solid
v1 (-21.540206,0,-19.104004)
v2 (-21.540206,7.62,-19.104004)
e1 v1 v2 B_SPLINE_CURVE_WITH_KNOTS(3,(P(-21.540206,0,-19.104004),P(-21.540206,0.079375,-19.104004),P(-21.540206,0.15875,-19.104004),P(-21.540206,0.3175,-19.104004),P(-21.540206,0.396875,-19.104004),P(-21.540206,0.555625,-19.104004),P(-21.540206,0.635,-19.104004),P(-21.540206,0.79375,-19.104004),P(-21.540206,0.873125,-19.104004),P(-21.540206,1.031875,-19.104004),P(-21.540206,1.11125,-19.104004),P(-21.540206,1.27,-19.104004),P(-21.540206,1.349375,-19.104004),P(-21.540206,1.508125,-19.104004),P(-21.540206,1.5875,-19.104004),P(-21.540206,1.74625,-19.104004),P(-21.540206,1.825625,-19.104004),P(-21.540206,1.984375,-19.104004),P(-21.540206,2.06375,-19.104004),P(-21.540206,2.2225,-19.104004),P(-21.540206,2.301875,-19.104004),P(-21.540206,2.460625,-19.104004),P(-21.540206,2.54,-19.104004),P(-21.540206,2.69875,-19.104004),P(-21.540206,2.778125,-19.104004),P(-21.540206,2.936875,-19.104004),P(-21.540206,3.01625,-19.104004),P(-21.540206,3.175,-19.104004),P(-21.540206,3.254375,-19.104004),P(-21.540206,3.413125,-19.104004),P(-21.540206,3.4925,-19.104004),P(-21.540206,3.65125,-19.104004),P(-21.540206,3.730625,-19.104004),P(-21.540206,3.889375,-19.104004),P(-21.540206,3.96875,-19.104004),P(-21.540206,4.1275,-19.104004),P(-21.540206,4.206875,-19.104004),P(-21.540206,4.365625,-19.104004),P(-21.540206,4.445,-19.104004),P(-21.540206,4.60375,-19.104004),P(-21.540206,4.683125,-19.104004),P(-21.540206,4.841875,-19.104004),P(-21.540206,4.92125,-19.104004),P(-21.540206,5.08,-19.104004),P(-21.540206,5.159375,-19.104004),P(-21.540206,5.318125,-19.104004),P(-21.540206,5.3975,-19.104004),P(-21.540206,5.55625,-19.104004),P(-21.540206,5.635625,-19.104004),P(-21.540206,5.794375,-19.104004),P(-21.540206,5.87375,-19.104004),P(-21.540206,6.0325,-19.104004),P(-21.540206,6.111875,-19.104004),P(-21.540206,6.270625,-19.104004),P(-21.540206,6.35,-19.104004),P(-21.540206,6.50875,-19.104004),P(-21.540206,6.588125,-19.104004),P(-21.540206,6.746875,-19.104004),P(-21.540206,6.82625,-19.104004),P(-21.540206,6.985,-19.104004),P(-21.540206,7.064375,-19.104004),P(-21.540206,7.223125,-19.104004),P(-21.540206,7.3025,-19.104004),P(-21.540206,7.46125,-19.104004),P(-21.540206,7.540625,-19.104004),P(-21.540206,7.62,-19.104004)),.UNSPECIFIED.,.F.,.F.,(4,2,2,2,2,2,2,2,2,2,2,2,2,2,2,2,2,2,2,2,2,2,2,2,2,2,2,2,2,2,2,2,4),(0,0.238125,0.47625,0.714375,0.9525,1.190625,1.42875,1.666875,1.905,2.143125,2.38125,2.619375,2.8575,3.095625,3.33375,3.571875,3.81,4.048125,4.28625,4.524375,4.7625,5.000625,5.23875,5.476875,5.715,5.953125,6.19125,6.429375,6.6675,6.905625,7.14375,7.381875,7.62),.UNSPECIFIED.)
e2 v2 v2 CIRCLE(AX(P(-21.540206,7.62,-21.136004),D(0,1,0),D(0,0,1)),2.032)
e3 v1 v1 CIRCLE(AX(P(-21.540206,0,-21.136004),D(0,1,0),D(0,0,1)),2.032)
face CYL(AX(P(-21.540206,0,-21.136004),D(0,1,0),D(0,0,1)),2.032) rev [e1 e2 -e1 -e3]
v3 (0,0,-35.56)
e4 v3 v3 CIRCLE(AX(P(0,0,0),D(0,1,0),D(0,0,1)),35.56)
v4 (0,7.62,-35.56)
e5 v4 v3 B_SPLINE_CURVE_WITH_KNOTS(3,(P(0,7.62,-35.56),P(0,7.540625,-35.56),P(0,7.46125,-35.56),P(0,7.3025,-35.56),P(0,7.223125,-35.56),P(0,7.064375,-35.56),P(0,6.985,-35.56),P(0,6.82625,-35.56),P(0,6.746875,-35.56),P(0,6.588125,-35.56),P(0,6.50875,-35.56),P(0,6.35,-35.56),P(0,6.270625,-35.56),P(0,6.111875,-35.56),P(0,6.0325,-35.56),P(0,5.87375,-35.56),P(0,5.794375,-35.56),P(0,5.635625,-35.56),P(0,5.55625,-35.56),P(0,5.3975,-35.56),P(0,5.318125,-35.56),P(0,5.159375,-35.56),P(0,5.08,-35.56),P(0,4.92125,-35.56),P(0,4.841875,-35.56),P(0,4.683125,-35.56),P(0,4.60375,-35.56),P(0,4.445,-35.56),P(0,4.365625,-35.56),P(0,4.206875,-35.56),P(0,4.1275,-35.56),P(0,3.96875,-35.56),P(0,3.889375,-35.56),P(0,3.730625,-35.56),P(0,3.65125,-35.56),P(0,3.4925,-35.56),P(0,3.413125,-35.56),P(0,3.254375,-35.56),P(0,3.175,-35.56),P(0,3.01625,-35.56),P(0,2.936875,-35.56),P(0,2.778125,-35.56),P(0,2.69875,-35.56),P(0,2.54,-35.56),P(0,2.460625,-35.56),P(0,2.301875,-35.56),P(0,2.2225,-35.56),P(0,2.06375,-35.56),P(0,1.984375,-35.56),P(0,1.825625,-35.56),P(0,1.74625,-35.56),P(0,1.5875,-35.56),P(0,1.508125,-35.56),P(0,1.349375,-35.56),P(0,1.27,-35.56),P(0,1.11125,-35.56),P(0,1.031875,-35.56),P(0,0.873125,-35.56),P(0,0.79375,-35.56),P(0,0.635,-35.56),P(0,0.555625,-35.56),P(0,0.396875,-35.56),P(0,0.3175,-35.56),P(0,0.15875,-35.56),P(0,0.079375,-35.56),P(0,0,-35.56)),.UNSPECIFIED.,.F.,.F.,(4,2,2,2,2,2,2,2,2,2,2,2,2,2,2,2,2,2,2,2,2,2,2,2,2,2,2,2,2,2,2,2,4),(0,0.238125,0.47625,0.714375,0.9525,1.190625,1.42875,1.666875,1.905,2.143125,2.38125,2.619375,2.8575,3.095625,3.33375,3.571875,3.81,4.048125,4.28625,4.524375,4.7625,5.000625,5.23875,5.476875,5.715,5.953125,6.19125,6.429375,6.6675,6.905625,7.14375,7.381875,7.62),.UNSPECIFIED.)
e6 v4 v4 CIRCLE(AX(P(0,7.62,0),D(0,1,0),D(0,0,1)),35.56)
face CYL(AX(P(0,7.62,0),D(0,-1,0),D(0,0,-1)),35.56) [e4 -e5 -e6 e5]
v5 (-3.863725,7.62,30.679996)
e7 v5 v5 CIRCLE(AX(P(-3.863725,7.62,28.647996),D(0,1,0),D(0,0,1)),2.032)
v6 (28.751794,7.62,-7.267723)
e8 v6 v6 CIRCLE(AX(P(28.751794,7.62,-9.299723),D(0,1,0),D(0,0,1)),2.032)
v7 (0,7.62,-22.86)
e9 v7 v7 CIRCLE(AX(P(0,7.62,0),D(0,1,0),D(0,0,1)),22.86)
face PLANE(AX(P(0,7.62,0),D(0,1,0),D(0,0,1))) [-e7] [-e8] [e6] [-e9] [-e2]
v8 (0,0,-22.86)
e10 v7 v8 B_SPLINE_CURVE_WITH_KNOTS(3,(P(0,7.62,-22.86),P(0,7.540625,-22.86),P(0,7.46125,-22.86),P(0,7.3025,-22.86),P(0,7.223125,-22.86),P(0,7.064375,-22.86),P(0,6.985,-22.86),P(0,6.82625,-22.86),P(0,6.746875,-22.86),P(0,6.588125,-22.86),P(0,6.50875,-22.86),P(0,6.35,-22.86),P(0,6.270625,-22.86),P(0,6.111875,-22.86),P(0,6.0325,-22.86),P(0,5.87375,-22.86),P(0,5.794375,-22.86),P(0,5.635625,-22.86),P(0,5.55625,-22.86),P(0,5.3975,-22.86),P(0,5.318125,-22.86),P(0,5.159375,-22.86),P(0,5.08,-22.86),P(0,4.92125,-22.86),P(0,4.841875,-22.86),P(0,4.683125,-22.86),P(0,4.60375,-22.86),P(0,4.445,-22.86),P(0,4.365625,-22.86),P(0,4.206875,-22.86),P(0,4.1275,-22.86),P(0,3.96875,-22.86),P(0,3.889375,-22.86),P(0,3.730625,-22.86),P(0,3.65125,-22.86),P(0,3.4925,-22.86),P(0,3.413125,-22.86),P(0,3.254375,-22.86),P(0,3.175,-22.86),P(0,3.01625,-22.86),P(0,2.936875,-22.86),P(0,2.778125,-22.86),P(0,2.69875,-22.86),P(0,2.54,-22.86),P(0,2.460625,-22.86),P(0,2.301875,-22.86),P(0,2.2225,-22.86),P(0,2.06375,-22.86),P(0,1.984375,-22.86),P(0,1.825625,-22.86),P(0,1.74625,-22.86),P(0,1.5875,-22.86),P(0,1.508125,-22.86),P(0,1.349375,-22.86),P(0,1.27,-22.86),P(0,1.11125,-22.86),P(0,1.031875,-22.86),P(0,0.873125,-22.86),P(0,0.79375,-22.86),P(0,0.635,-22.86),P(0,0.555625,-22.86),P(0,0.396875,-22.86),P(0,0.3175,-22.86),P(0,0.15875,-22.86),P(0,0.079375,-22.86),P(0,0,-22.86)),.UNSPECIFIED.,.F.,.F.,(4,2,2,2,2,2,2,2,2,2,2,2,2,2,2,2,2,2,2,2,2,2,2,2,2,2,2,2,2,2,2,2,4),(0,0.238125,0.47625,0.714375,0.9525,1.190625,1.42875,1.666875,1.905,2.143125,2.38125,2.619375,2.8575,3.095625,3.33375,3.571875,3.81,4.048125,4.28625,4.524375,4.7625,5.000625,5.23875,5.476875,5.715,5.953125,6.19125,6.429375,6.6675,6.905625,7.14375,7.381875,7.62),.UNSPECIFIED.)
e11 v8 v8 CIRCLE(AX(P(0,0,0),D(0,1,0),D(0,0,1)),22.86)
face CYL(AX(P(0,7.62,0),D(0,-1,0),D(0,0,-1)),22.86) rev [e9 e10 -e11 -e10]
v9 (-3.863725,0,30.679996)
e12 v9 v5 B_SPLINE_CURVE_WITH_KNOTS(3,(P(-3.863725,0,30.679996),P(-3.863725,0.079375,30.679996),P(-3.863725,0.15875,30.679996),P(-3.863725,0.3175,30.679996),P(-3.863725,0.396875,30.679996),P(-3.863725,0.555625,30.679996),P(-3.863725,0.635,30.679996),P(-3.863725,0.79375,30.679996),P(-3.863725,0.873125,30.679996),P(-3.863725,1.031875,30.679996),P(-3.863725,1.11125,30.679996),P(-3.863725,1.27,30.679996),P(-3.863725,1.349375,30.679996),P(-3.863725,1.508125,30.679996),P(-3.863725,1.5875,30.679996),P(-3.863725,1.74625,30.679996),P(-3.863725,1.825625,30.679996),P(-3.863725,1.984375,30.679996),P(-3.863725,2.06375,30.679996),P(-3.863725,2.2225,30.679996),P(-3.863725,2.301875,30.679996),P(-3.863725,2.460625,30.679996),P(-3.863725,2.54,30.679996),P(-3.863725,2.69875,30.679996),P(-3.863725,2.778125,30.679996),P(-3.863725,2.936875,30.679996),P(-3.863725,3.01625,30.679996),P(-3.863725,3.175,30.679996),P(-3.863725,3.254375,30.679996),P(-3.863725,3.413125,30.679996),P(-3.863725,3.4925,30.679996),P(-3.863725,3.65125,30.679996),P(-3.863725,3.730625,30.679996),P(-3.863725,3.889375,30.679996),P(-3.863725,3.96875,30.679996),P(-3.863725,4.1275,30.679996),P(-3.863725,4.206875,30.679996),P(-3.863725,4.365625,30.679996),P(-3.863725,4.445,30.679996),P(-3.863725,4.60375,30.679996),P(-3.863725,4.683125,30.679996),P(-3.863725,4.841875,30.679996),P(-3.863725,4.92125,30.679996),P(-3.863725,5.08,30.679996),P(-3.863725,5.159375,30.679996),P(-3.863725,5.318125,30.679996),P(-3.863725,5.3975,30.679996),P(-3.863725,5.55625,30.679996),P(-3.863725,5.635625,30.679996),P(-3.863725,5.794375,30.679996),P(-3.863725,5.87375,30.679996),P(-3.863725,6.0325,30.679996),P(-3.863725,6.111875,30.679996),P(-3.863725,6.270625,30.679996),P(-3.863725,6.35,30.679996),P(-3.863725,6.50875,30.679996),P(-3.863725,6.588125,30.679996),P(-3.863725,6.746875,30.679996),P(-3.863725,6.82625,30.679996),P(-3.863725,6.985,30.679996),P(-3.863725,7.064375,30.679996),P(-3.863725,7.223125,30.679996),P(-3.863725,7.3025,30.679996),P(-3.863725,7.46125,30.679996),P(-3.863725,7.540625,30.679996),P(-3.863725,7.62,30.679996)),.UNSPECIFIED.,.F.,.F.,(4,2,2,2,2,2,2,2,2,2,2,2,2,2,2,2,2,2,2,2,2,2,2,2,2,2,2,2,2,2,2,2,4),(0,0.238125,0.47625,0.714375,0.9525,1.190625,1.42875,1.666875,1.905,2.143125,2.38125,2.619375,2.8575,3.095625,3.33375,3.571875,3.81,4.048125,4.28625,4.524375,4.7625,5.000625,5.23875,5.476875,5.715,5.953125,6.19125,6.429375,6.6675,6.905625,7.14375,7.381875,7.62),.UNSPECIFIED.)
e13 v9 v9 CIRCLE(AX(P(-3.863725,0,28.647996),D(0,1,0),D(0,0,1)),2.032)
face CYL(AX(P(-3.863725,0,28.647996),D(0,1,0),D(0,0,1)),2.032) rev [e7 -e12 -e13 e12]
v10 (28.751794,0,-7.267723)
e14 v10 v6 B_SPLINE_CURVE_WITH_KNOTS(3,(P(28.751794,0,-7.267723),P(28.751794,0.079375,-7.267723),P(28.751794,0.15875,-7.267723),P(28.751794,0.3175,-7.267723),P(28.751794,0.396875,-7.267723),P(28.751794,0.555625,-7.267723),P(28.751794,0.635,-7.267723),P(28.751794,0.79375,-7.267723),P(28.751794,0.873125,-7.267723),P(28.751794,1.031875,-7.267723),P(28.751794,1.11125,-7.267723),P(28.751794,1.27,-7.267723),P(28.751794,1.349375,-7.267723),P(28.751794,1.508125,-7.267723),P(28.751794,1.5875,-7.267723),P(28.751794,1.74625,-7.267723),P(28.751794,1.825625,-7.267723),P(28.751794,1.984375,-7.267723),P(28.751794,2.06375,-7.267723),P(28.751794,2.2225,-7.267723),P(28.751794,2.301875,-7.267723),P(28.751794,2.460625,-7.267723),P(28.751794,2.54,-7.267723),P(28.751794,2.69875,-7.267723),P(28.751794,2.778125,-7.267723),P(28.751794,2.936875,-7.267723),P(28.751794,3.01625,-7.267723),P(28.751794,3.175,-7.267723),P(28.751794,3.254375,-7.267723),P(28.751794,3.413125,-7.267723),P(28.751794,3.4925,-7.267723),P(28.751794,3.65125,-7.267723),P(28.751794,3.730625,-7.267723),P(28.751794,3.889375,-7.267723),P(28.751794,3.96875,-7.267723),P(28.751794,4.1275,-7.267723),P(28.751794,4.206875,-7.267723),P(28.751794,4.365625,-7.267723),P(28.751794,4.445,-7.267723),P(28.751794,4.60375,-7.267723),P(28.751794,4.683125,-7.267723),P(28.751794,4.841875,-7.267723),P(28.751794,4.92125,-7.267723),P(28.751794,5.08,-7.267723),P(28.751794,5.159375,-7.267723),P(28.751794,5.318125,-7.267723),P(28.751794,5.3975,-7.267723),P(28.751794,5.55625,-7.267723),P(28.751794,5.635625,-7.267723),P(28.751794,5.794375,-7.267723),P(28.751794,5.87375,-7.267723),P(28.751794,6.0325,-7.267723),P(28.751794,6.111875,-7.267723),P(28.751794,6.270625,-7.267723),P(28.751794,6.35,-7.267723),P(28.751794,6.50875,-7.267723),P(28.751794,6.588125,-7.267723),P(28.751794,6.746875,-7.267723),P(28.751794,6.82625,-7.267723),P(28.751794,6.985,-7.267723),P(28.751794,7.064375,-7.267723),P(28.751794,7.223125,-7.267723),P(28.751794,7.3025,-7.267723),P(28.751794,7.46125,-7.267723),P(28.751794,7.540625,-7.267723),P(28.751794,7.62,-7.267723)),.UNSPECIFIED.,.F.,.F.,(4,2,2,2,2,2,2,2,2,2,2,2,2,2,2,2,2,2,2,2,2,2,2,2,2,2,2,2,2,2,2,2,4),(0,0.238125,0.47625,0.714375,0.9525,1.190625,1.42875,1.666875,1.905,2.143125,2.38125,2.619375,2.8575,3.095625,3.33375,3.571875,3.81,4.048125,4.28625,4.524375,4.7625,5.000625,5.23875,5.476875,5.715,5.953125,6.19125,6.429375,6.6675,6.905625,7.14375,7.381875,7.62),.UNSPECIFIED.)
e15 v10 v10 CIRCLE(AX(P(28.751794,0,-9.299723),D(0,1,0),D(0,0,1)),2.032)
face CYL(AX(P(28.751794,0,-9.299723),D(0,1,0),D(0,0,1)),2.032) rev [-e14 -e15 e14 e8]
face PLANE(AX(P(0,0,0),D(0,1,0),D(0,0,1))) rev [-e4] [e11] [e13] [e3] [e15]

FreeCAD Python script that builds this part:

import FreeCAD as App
import Part
import Sketcher
from FreeCAD import Vector
Q = App.Units.Quantity

doc = App.newDocument("Part")
params = doc.addObject("Spreadsheet::Sheet", "Params")
for row, (alias, value) in enumerate([
    ("sketch1_diameter", "2.8 in"),
    ("sketch1_diameter2", "1.8 in"),
    ("pad1_length", "0.3 in"),
    ("sketch2_diameter", "0.16 in"),
], start=1):
    params.set(f"A{row}", alias)
    params.set(f"B{row}", "=" + value)
    params.setAlias(f"B{row}", alias)

body = doc.addObject("PartDesign::Body", "Body")

sketch1 = doc.addObject("Sketcher::SketchObject", "Sketch")
body.addObject(sketch1)
sketch1.AttachmentSupport = (doc.XZ_Plane, [""])
sketch1.MapMode = "FlatFace"
sketch1.addGeometry([
    Part.Circle(Vector(0, 0, 0), Vector(0, 0, 1), 35.56),
    Part.Circle(Vector(0, 0, 0), Vector(0, 0, 1), 22.86),
], False)
sketch1.addConstraint([
    Sketcher.Constraint("Coincident", 0, 3, -1, 1),
    Sketcher.Constraint("Coincident", 1, 3, -1, 1),
    Sketcher.Constraint("Diameter", 0, Q("2.8 in")),
    Sketcher.Constraint("Diameter", 1, Q("1.8 in")),
])
sketch1.setExpression("Constraints[2]", "Params.sketch1_diameter")
sketch1.setExpression("Constraints[3]", "Params.sketch1_diameter2")
pad1 = doc.addObject("PartDesign::Pad", "Pad")
body.addObject(pad1)
pad1.Profile = sketch1
pad1.setExpression("Length", "Params.pad1_length")
pad1.Reversed = True

sketch2 = doc.addObject("Sketcher::SketchObject", "Sketch001")
body.addObject(sketch2)
sketch2.AttachmentSupport = (doc.XZ_Plane, [""])
sketch2.MapMode = "FlatFace"
sketch2.AttachmentOffset = App.Placement(Vector(0, 0, -0.3 * 25.4), App.Rotation())
sketch2.addGeometry([
    Part.Circle(Vector(28.751794, -9.299723, 0), Vector(0, 0, 1), 2.032),
    Part.Circle(Vector(-3.863725, 28.647996, 0), Vector(0, 0, 1), 2.032),
    Part.Circle(Vector(-21.540206, -21.136004, 0), Vector(0, 0, 1), 2.032),
], False)
sketch2.addConstraint([
    Sketcher.Constraint("Equal", 0, 1),
    Sketcher.Constraint("Equal", 1, 2),
    Sketcher.Constraint("Diameter", 0, Q("0.16 in")),
    Sketcher.Constraint("DistanceX", 2, 3, 0, 3, Q("1.98 in")),
    Sketcher.Constraint("DistanceY", 2, 3, 1, 3, Q("1.96 in")),
    Sketcher.Constraint("DistanceX", 1, 3, 0, 3, Q("32.615519 mm")),
    Sketcher.Constraint("DistanceY", 0, 3, 1, 3, Q("37.947719 mm")),
    Sketcher.Constraint("DistanceX", -1, 1, 0, 3, Q("28.751794 mm")),
    Sketcher.Constraint("DistanceY", 0, 3, -1, 1, Q("9.299723 mm")),
])
sketch2.setExpression("Constraints[2]", "Params.sketch2_diameter")
pocket1 = doc.addObject("PartDesign::Pocket", "Pocket")
body.addObject(pocket1)
pocket1.Profile = sketch2
pocket1.Type = "ThroughAll"
pocket1.Reversed = True

doc.recompute()
